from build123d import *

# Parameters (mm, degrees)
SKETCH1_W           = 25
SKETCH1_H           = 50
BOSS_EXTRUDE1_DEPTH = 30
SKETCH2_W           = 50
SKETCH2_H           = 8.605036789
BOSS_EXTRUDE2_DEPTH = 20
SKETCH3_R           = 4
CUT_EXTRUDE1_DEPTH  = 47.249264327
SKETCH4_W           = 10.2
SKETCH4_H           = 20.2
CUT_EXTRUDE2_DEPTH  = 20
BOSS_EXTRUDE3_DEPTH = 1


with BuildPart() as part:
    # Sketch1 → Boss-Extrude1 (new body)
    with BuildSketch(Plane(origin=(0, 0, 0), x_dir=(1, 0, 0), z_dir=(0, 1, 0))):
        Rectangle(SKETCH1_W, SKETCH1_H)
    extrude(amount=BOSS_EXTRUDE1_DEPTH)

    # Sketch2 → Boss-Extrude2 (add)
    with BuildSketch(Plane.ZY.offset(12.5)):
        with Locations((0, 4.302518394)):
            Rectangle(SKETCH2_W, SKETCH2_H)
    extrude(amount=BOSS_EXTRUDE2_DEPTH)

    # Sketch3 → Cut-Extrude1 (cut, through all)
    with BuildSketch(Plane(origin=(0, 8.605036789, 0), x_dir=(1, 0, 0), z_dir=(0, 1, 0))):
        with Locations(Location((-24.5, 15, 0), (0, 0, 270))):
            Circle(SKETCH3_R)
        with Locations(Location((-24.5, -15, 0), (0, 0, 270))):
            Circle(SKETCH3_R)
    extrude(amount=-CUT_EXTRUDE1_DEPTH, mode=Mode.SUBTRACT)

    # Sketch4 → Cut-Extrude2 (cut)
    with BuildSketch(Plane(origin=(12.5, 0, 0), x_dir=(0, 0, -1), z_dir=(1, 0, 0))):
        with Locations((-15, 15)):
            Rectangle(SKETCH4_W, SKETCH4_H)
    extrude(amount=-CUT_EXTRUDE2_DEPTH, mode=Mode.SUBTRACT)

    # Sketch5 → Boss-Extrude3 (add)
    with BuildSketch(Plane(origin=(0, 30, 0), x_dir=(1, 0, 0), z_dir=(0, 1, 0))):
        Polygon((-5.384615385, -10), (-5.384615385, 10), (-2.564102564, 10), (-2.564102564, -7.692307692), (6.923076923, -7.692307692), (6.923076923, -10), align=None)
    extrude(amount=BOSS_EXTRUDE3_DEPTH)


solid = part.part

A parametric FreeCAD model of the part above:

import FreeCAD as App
import Part
import Sketcher

doc = App.newDocument("Part")
body = doc.addObject("PartDesign::Body", "Body")

sketch1 = body.newObject("Sketcher::SketchObject", "Sketch")
sketch1.AttachmentSupport = (doc.getObject("XZ_Plane"), [""])
sketch1.MapMode = "FlatFace"
sketch1.addGeometry([
    Part.LineSegment(App.Vector(-12, -25, 0), App.Vector(-12, 25, 0)),
    Part.LineSegment(App.Vector(-12, 25, 0), App.Vector(12, 25, 0)),
    Part.LineSegment(App.Vector(12, 25, 0), App.Vector(12, -25, 0)),
    Part.LineSegment(App.Vector(12, -25, 0), App.Vector(-12, -25, 0)),
], False)
sketch1.addConstraint([
    Sketcher.Constraint("Coincident", 0, 2, 1, 1),
    Sketcher.Constraint("Coincident", 1, 2, 2, 1),
    Sketcher.Constraint("Coincident", 2, 2, 3, 1),
    Sketcher.Constraint("Coincident", 3, 2, 0, 1),
    Sketcher.Constraint("Vertical", 0),
    Sketcher.Constraint("Horizontal", 1),
    Sketcher.Constraint("Vertical", 2),
    Sketcher.Constraint("Horizontal", 3),
    Sketcher.Constraint("Symmetric", 0, 2, 2, 2, -1, 1),
    Sketcher.Constraint("DistanceX", 1, 1, 1, 2, 25.0),
    Sketcher.Constraint("DistanceY", 0, 1, 0, 2, 50.0),
])
pad1 = body.newObject("PartDesign::Pad", "Pad")
pad1.Profile = sketch1
pad1.Length = 30
pad1.Reversed = True

sketch2 = body.newObject("Sketcher::SketchObject", "Sketch001")
sketch2.AttachmentSupport = (doc.getObject("YZ_Plane"), [""])
sketch2.MapMode = "FlatFace"
sketch2.AttachmentOffset = App.Placement(App.Vector(0, 0, -12.5), App.Rotation())
sketch2.addGeometry([
    Part.LineSegment(App.Vector(9, -25, 0), App.Vector(0, -25, 0)),
    Part.LineSegment(App.Vector(0, -25, 0), App.Vector(0, 25, 0)),
    Part.LineSegment(App.Vector(0, 25, 0), App.Vector(9, 25, 0)),
    Part.LineSegment(App.Vector(9, 25, 0), App.Vector(9, -25, 0)),
], False)
sketch2.addConstraint([
    Sketcher.Constraint("Coincident", 0, 2, 1, 1),
    Sketcher.Constraint("Coincident", 1, 2, 2, 1),
    Sketcher.Constraint("Coincident", 2, 2, 3, 1),
    Sketcher.Constraint("Coincident", 3, 2, 0, 1),
    Sketcher.Constraint("Horizontal", 0),
    Sketcher.Constraint("Vertical", 1),
    Sketcher.Constraint("Horizontal", 2),
    Sketcher.Constraint("Vertical", 3),
    Sketcher.Constraint("Symmetric", 0, 2, 1, 2, -1, 1),
    Sketcher.Constraint("DistanceY", 1, 1, 1, 2, 50.0),
    Sketcher.Constraint("DistanceX", 0, 2, 0, 1, 8.605037),
])
pad2 = body.newObject("PartDesign::Pad", "Pad001")
pad2.Profile = sketch2
pad2.Length = 20
pad2.Reversed = True

sketch3 = body.newObject("Sketcher::SketchObject", "Sketch002")
sketch3.AttachmentSupport = (doc.getObject("XZ_Plane"), [""])
sketch3.MapMode = "FlatFace"
sketch3.AttachmentOffset = App.Placement(App.Vector(0, 0, -8.605037), App.Rotation())
sketch3.addGeometry([
    Part.Circle(App.Vector(-24.5, -15, 0), App.Vector(0, 0, 1), 4),
    Part.Circle(App.Vector(-24.5, 15, 0), App.Vector(0, 0, 1), 4),
], False)
sketch3.addConstraint([
    Sketcher.Constraint("Equal", 0, 1),
    Sketcher.Constraint("Symmetric", 0, 3, 1, 3, -1),
    Sketcher.Constraint("Diameter", 0, 8.0),
    Sketcher.Constraint("DistanceY", 0, 3, -1, 1, 15.0),
    Sketcher.Constraint("DistanceX", 0, 3, -1, 1, 24.5),
])
pocket1 = body.newObject("PartDesign::Pocket", "Pocket")
pocket1.Profile = sketch3
pocket1.Type = "ThroughAll"
pocket1.Reversed = True

sketch4 = body.newObject("Sketcher::SketchObject", "Sketch003")
sketch4.AttachmentSupport = (doc.getObject("YZ_Plane"), [""])
sketch4.MapMode = "FlatFace"
sketch4.AttachmentOffset = App.Placement(App.Vector(0, 0, 12.5), App.Rotation())
sketch4.addGeometry([
    Part.LineSegment(App.Vector(25, 20, 0), App.Vector(5, 20, 0)),
    Part.LineSegment(App.Vector(5, 20, 0), App.Vector(5, 10, 0)),
    Part.LineSegment(App.Vector(5, 10, 0), App.Vector(25, 10, 0)),
    Part.LineSegment(App.Vector(25, 10, 0), App.Vector(25, 20, 0)),
], False)
sketch4.addConstraint([
    Sketcher.Constraint("Coincident", 0, 2, 1, 1),
    Sketcher.Constraint("Coincident", 1, 2, 2, 1),
    Sketcher.Constraint("Coincident", 2, 2, 3, 1),
    Sketcher.Constraint("Coincident", 3, 2, 0, 1),
    Sketcher.Constraint("Horizontal", 0),
    Sketcher.Constraint("Vertical", 1),
    Sketcher.Constraint("Horizontal", 2),
    Sketcher.Constraint("Vertical", 3),
    Sketcher.Constraint("DistanceX", 0, 2, 0, 1, 20.2),
    Sketcher.Constraint("DistanceY", 1, 2, 1, 1, 10.2),
    Sketcher.Constraint("DistanceX", -1, 1, 0, 2, 4.9),
    Sketcher.Constraint("DistanceY", -1, 1, 0, 2, 20.1),
])
pocket2 = body.newObject("PartDesign::Pocket", "Pocket001")
pocket2.Profile = sketch4
pocket2.Length = 20

sketch5 = body.newObject("Sketcher::SketchObject", "Sketch004")
sketch5.AttachmentSupport = (doc.getObject("XZ_Plane"), [""])
sketch5.MapMode = "FlatFace"
sketch5.AttachmentOffset = App.Placement(App.Vector(0, 0, -30), App.Rotation())
sketch5.addGeometry([
    Part.LineSegment(App.Vector(-5.4, -10, 0), App.Vector(-5.4, 10, 0)),
    Part.LineSegment(App.Vector(-5.4, 10, 0), App.Vector(6.9, 10, 0)),
    Part.LineSegment(App.Vector(6.9, 10, 0), App.Vector(6.9, 7.7, 0)),
    Part.LineSegment(App.Vector(6.9, 7.7, 0), App.Vector(-2.6, 7.7, 0)),
    Part.LineSegment(App.Vector(-2.6, 7.7, 0), App.Vector(-2.6, -10, 0)),
    Part.LineSegment(App.Vector(-2.6, -10, 0), App.Vector(-5.4, -10, 0)),
], False)
sketch5.addConstraint([
    Sketcher.Constraint("Coincident", 0, 2, 1, 1),
    Sketcher.Constraint("Coincident", 1, 2, 2, 1),
    Sketcher.Constraint("Coincident", 2, 2, 3, 1),
    Sketcher.Constraint("Coincident", 3, 2, 4, 1),
    Sketcher.Constraint("Coincident", 4, 2, 5, 1),
    Sketcher.Constraint("Coincident", 5, 2, 0, 1),
    Sketcher.Constraint("Vertical", 0),
    Sketcher.Constraint("Horizontal", 1),
    Sketcher.Constraint("Vertical", 2),
    Sketcher.Constraint("Horizontal", 3),
    Sketcher.Constraint("Vertical", 4),
    Sketcher.Constraint("Horizontal", 5),
    Sketcher.Constraint("DistanceY", 0, 1, 0, 2, 20.0),
    Sketcher.Constraint("DistanceY", -1, 1, 0, 2, 10.0),
    Sketcher.Constraint("DistanceX", 3, 2, 3, 1, 9.487179),
    Sketcher.Constraint("DistanceX", 1, 1, 1, 2, 12.307692),
    Sketcher.Constraint("DistanceY", 2, 2, 2, 1, 2.307692),
    Sketcher.Constraint("DistanceX", 0, 2, -1, 1, 5.384615),
])
pad3 = body.newObject("PartDesign::Pad", "Pad002")
pad3.Profile = sketch5
pad3.Length = 1
pad3.Reversed = True

doc.recompute()
